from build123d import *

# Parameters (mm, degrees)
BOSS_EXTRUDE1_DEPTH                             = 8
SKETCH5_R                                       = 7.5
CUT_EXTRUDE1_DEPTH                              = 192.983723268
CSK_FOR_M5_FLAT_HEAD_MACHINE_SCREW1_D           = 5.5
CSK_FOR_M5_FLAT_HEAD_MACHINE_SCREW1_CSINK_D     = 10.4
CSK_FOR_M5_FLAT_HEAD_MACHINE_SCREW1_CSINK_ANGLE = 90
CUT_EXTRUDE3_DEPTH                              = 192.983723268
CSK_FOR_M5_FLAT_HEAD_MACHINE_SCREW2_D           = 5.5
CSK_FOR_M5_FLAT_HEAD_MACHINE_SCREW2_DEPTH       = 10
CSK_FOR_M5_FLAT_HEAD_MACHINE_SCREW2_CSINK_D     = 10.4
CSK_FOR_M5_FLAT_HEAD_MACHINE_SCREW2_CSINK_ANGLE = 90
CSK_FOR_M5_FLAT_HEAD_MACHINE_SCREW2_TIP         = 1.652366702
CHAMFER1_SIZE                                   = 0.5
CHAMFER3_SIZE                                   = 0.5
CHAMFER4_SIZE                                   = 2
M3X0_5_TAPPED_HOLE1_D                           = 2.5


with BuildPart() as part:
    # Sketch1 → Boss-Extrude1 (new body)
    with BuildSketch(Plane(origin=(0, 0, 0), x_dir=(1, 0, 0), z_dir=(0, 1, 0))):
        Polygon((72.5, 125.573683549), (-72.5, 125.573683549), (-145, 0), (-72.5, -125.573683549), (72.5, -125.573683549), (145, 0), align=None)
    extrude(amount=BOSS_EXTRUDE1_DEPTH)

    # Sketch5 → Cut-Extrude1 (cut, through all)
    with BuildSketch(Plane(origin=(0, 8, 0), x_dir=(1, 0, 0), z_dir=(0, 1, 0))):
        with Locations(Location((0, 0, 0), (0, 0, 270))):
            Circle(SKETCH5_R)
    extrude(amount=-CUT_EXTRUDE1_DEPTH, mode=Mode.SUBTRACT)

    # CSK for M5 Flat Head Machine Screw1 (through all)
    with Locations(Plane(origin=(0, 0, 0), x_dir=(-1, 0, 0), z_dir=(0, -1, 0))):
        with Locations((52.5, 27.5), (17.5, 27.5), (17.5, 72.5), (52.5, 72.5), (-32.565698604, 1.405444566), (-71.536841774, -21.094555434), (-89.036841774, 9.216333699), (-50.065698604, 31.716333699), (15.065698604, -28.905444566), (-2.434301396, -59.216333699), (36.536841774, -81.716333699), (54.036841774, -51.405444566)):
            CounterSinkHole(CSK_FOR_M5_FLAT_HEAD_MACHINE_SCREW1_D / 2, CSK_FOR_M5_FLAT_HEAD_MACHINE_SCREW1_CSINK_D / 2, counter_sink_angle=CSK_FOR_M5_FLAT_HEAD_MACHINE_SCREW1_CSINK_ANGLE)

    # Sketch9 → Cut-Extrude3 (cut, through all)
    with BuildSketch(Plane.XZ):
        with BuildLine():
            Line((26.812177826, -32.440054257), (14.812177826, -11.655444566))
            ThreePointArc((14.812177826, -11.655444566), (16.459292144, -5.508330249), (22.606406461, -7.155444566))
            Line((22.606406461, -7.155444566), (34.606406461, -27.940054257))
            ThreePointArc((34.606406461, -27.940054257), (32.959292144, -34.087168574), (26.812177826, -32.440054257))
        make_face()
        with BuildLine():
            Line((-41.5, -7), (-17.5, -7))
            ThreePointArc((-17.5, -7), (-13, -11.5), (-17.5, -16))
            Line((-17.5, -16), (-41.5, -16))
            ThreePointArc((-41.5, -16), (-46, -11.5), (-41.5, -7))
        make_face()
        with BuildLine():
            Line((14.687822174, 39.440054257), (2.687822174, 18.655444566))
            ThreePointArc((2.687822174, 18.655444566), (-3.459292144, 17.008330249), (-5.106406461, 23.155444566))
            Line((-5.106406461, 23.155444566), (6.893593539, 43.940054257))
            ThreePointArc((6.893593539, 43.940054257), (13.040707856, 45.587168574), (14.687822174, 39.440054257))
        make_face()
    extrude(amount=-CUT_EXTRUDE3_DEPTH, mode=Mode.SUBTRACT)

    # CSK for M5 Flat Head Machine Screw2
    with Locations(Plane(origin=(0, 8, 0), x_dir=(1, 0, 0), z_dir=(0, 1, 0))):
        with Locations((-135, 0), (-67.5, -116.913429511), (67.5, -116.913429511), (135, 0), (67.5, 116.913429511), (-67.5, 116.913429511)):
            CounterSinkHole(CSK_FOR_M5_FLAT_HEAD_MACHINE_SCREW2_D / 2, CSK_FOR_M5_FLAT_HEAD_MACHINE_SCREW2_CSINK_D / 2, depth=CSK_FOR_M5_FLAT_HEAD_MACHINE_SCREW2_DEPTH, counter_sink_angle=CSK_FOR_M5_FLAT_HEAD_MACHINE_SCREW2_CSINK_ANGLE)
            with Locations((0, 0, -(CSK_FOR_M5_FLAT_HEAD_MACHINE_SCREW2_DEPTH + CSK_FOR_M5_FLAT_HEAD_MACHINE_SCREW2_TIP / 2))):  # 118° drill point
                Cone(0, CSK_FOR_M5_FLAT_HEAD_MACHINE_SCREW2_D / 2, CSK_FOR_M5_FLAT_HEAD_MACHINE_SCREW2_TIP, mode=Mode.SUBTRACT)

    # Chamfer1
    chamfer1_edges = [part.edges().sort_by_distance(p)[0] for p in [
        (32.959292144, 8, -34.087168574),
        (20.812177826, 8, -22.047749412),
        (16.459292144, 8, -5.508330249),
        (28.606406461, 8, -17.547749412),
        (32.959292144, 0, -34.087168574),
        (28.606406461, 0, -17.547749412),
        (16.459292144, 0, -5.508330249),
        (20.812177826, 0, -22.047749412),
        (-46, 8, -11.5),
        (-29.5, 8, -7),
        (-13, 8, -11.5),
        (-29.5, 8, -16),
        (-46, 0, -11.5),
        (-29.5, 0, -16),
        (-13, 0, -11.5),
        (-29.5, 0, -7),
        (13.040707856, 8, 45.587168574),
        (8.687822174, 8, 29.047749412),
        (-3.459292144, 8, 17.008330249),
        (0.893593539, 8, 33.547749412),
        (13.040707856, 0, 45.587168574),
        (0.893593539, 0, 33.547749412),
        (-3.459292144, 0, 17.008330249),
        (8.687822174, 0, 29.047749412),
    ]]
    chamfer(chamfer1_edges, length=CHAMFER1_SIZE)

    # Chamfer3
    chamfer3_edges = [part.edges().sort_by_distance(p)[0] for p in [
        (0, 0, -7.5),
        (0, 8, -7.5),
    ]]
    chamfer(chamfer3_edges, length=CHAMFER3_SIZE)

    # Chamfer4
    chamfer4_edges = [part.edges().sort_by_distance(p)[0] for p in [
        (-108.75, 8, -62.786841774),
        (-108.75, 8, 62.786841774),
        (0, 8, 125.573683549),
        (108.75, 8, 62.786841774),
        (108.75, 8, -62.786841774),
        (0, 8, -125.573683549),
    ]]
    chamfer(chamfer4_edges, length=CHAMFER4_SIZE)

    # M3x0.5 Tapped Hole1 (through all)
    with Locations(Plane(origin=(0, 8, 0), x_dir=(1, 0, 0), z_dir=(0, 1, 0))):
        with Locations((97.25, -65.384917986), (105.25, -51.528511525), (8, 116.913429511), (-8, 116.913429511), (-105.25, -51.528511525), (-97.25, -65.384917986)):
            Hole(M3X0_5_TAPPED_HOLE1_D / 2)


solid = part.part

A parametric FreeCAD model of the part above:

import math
import FreeCAD as App
import Part
import Sketcher
Q = App.Units.Quantity


def edges_at(feature, points):
    """Names of the edges that pass closest to the given points."""
    edges = feature.Shape.Edges
    near = lambda p: min(range(len(edges)), key=lambda i: edges[i].distToShape(Part.Vertex(*p))[0])
    return sorted({f"Edge{near(p) + 1}" for p in points})

doc = App.newDocument("Part")
body = doc.addObject("PartDesign::Body", "Body")

# Sketch on XZ plane
sketch1 = body.newObject("Sketcher::SketchObject", "Sketch")
sketch1.AttachmentSupport = (doc.getObject("XZ_Plane"), [""])
sketch1.MapMode = "FlatFace"
sketch1.addGeometry([
    Part.LineSegment(App.Vector(72, -126, 0), App.Vector(-72, -126, 0)),  # 0
    Part.LineSegment(App.Vector(-72, -126, 0), App.Vector(-145, 0, 0)),  # 1
    Part.LineSegment(App.Vector(-145, 0, 0), App.Vector(-72, 126, 0)),  # 2
    Part.LineSegment(App.Vector(-72, 126, 0), App.Vector(72, 126, 0)),  # 3
    Part.LineSegment(App.Vector(72, 126, 0), App.Vector(145, 0, 0)),  # 4
    Part.LineSegment(App.Vector(145, 0, 0), App.Vector(72, -126, 0)),  # 5
], False)
sketch1.addConstraint([
    Sketcher.Constraint("Coincident", 0, 2, 1, 1),
    Sketcher.Constraint("Coincident", 1, 2, 2, 1),
    Sketcher.Constraint("Coincident", 2, 2, 3, 1),
    Sketcher.Constraint("Coincident", 3, 2, 4, 1),
    Sketcher.Constraint("Coincident", 4, 2, 5, 1),
    Sketcher.Constraint("Coincident", 5, 2, 0, 1),
    Sketcher.Constraint("Horizontal", 0),
    Sketcher.Constraint("Horizontal", 3),
    Sketcher.Constraint("Symmetric", 0, 2, 3, 2, -1, 1),
    Sketcher.Constraint("Symmetric", 1, 2, 4, 2, -1, 1),
    Sketcher.Constraint("PointOnObject", 1, 2, -1),
    Sketcher.Constraint("Parallel", 2, 5),
    Sketcher.Constraint("Vertical", 0, 2, 2, 2),
    Sketcher.Constraint("DistanceX", 0, 2, 0, 1, Q("145 mm")),
    Sketcher.Constraint("Angle", 1, Q("120 deg")),
    Sketcher.Constraint("Distance", 1, Q("145 mm")),
])
pad1 = body.newObject("PartDesign::Pad", "Pad")
pad1.Profile = sketch1
pad1.Length = 8
pad1.Reversed = True

# Sketch on XZ plane
sketch2 = body.newObject("Sketcher::SketchObject", "Sketch001")
sketch2.AttachmentSupport = (doc.getObject("XZ_Plane"), [""])
sketch2.MapMode = "FlatFace"
sketch2.AttachmentOffset = App.Placement(App.Vector(0, 0, -8), App.Rotation())
sketch2.addGeometry(Part.Circle(App.Vector(0, 0, 0), App.Vector(0, 0, 1), 8), False)
sketch2.addConstraint([
    Sketcher.Constraint("Coincident", 0, 3, -1, 1),
    Sketcher.Constraint("Diameter", 0, Q("15 mm")),
])
pocket1 = body.newObject("PartDesign::Pocket", "Pocket")
pocket1.Profile = sketch2
pocket1.Type = "ThroughAll"
pocket1.Reversed = True

# Sketch on XZ plane
sketch3 = body.newObject("Sketcher::SketchObject", "Sketch002")
sketch3.AttachmentSupport = (doc.getObject("XZ_Plane"), [""])
sketch3.MapMode = "FlatFace"
sketch3.addGeometry([
    Part.Circle(App.Vector(-52.5, -27.5, 0), App.Vector(0, 0, 1), 2.8),  # 0
    Part.Circle(App.Vector(-17.5, -27.5, 0), App.Vector(0, 0, 1), 2.8),  # 1
    Part.Circle(App.Vector(-17.5, -72.5, 0), App.Vector(0, 0, 1), 2.8),  # 2
    Part.Circle(App.Vector(-52.5, -72.5, 0), App.Vector(0, 0, 1), 2.8),  # 3
    Part.Circle(App.Vector(32.6, -1.4, 0), App.Vector(0, 0, 1), 2.8),  # 4
    Part.Circle(App.Vector(71.5, 21.1, 0), App.Vector(0, 0, 1), 2.8),  # 5
    Part.Circle(App.Vector(89, -9.2, 0), App.Vector(0, 0, 1), 2.8),  # 6
    Part.Circle(App.Vector(50.1, -31.7, 0), App.Vector(0, 0, 1), 2.8),  # 7
    Part.Circle(App.Vector(-15.1, 28.9, 0), App.Vector(0, 0, 1), 2.8),  # 8
    Part.Circle(App.Vector(2.4, 59.2, 0), App.Vector(0, 0, 1), 2.8),  # 9
    Part.Circle(App.Vector(-36.5, 81.7, 0), App.Vector(0, 0, 1), 2.8),  # 10
    Part.Circle(App.Vector(-54, 51.4, 0), App.Vector(0, 0, 1), 2.8),  # 11
], False)
sketch3.addConstraint([
    Sketcher.Constraint("Equal", 0, 1),
    Sketcher.Constraint("Equal", 1, 2),
    Sketcher.Constraint("Equal", 2, 3),
    Sketcher.Constraint("Equal", 3, 4),
    Sketcher.Constraint("Equal", 4, 5),
    Sketcher.Constraint("Equal", 5, 6),
    Sketcher.Constraint("Equal", 6, 7),
    Sketcher.Constraint("Equal", 7, 8),
    Sketcher.Constraint("Equal", 8, 9),
    Sketcher.Constraint("Equal", 9, 10),
    Sketcher.Constraint("Equal", 10, 11),
    Sketcher.Constraint("Horizontal", 0, 3, 1, 3),
    Sketcher.Constraint("Horizontal", 2, 3, 3, 3),
    Sketcher.Constraint("Vertical", 1, 3, 2, 3),
    Sketcher.Constraint("Vertical", 0, 3, 3, 3),
    Sketcher.Constraint("Diameter", 0, Q("5.5 mm")),
    Sketcher.Constraint("DistanceX", 0, 3, 1, 3, Q("35 mm")),
    Sketcher.Constraint("DistanceY", 2, 3, 1, 3, Q("45 mm")),
    Sketcher.Constraint("DistanceX", 0, 3, -1, 1, Q("52.5 mm")),
    Sketcher.Constraint("DistanceY", 0, 3, -1, 1, Q("27.5 mm")),
    Sketcher.Constraint("DistanceY", 4, 3, 5, 3, Q("22.5 mm")),
    Sketcher.Constraint("DistanceX", 5, 3, 6, 3, Q("17.5 mm")),
    Sketcher.Constraint("DistanceX", 4, 3, 7, 3, Q("17.5 mm")),
    Sketcher.Constraint("DistanceY", 7, 3, 6, 3, Q("22.5 mm")),
    Sketcher.Constraint("DistanceX", 8, 3, 9, 3, Q("17.5 mm")),
    Sketcher.Constraint("DistanceY", 9, 3, 10, 3, Q("22.5 mm")),
    Sketcher.Constraint("DistanceX", 11, 3, 10, 3, Q("17.5 mm")),
    Sketcher.Constraint("DistanceY", 8, 3, 11, 3, Q("22.5 mm")),
    Sketcher.Constraint("DistanceX", -1, 1, 4, 3, Q("32.565699 mm")),
    Sketcher.Constraint("DistanceX", 8, 3, -1, 1, Q("15.065699 mm")),
    Sketcher.Constraint("DistanceX", -1, 1, 5, 3, Q("71.536842 mm")),
    Sketcher.Constraint("DistanceX", 10, 3, -1, 1, Q("36.536842 mm")),
    Sketcher.Constraint("DistanceY", 6, 3, 5, 3, Q("30.310889 mm")),
    Sketcher.Constraint("DistanceY", 4, 3, 8, 3, Q("30.310889 mm")),
    Sketcher.Constraint("DistanceY", 8, 3, 9, 3, Q("30.310889 mm")),
    Sketcher.Constraint("DistanceY", 4, 3, -1, 1, Q("1.405445 mm")),
])
doc.recompute()
hole = body.newObject("PartDesign::Hole", "Hole")
hole.Profile = sketch3
hole.ThreadType = "None"
hole.Diameter = 5.5
hole.DepthType = "ThroughAll"
hole.HoleCutType = "Countersink"
hole.HoleCutDiameter = 10.4
hole.HoleCutCountersinkAngle = 90

# Sketch on XZ plane
sketch4 = body.newObject("Sketcher::SketchObject", "Sketch003")
sketch4.AttachmentSupport = (doc.getObject("XZ_Plane"), [""])
sketch4.MapMode = "FlatFace"
sketch4.addGeometry([
    Part.LineSegment(App.Vector(14.8, -11.7, 0), App.Vector(26.8, -32.4, 0)),  # 0
    Part.ArcOfCircle(Part.Circle(App.Vector(30.7, -30.2, 0), App.Vector(0, 0, 1), 4.5), math.radians(-150), math.radians(30)),  # 1
    Part.LineSegment(App.Vector(34.6, -27.9, 0), App.Vector(22.6, -7.2, 0)),  # 2
    Part.ArcOfCircle(Part.Circle(App.Vector(18.7, -9.4, 0), App.Vector(0, 0, 1), 4.5), math.radians(30), math.radians(210)),  # 3
    Part.LineSegment(App.Vector(-17.5, -7, 0), App.Vector(-41.5, -7, 0)),  # 4
    Part.ArcOfCircle(Part.Circle(App.Vector(-41.5, -11.5, 0), App.Vector(0, 0, 1), 4.5), math.radians(90), math.radians(270)),  # 5
    Part.LineSegment(App.Vector(-41.5, -16, 0), App.Vector(-17.5, -16, 0)),  # 6
    Part.ArcOfCircle(Part.Circle(App.Vector(-17.5, -11.5, 0), App.Vector(0, 0, 1), 4.5), math.radians(-90), math.radians(90)),  # 7
    Part.LineSegment(App.Vector(2.7, 18.7, 0), App.Vector(14.7, 39.4, 0)),  # 8
    Part.ArcOfCircle(Part.Circle(App.Vector(10.8, 41.7, 0), App.Vector(0, 0, 1), 4.5), math.radians(-30), math.radians(150)),  # 9
    Part.LineSegment(App.Vector(6.9, 43.9, 0), App.Vector(-5.1, 23.2, 0)),  # 10
    Part.ArcOfCircle(Part.Circle(App.Vector(-1.2, 20.9, 0), App.Vector(0, 0, 1), 4.5), math.radians(150), math.radians(330)),  # 11
], False)
sketch4.addConstraint([
    Sketcher.Constraint("Tangent", 0, 2, 1, 1),
    Sketcher.Constraint("Tangent", 1, 2, 2, 1),
    Sketcher.Constraint("Tangent", 2, 2, 3, 1),
    Sketcher.Constraint("Tangent", 3, 2, 0, 1),
    Sketcher.Constraint("Tangent", 4, 2, 5, 1),
    Sketcher.Constraint("Tangent", 5, 2, 6, 1),
    Sketcher.Constraint("Tangent", 6, 2, 7, 1),
    Sketcher.Constraint("Tangent", 7, 2, 4, 1),
    Sketcher.Constraint("Tangent", 8, 2, 9, 1),
    Sketcher.Constraint("Tangent", 9, 2, 10, 1),
    Sketcher.Constraint("Tangent", 10, 2, 11, 1),
    Sketcher.Constraint("Tangent", 11, 2, 8, 1),
    Sketcher.Constraint("Horizontal", 4),
    Sketcher.Constraint("Horizontal", 6),
    Sketcher.Constraint("Equal", 1, 3),
    Sketcher.Constraint("Equal", 3, 5),
    Sketcher.Constraint("Equal", 7, 9),
    Sketcher.Constraint("Equal", 9, 11),
    Sketcher.Constraint("Equal", 2, 8),
    Sketcher.Constraint("Radius", 1, Q("4.5 mm")),
    Sketcher.Constraint("DistanceX", 4, 2, 4, 1, Q("24 mm")),
    Sketcher.Constraint("Angle", 0, Q("-60 deg")),
    Sketcher.Constraint("Angle", 8, Q("60 deg")),
    Sketcher.Constraint("Distance", 0, Q("24 mm")),
    Sketcher.Constraint("DistanceY", 4, 2, -1, 1, Q("7 mm")),
    Sketcher.Constraint("DistanceX", 5, 3, -1, 1, Q("41.5 mm")),
    Sketcher.Constraint("DistanceY", 3, 3, 9, 3, Q("51.095499 mm")),
    Sketcher.Constraint("DistanceX", 11, 3, 1, 2, Q("35.815699 mm")),
    Sketcher.Constraint("DistanceX", -1, 1, 1, 3, Q("30.709292 mm")),
    Sketcher.Constraint("DistanceY", 1, 3, -1, 1, Q("30.190054 mm")),
])
pocket2 = body.newObject("PartDesign::Pocket", "Pocket001")
pocket2.Profile = sketch4
pocket2.Type = "ThroughAll"

# Sketch on XZ plane
sketch5 = body.newObject("Sketcher::SketchObject", "Sketch004")
sketch5.AttachmentSupport = (doc.getObject("XZ_Plane"), [""])
sketch5.MapMode = "FlatFace"
sketch5.AttachmentOffset = App.Placement(App.Vector(0, 0, -8), App.Rotation())
sketch5.addGeometry([
    Part.Circle(App.Vector(-135, 0, 0), App.Vector(0, 0, 1), 2.8),  # 0
    Part.Circle(App.Vector(-67.5, 116.9, 0), App.Vector(0, 0, 1), 2.8),  # 1
    Part.Circle(App.Vector(67.5, 116.9, 0), App.Vector(0, 0, 1), 2.8),  # 2
    Part.Circle(App.Vector(135, 0, 0), App.Vector(0, 0, 1), 2.8),  # 3
    Part.Circle(App.Vector(67.5, -116.9, 0), App.Vector(0, 0, 1), 2.8),  # 4
    Part.Circle(App.Vector(-67.5, -116.9, 0), App.Vector(0, 0, 1), 2.8),  # 5
], False)
sketch5.addConstraint([
    Sketcher.Constraint("Equal", 0, 1),
    Sketcher.Constraint("Equal", 1, 2),
    Sketcher.Constraint("Equal", 2, 3),
    Sketcher.Constraint("Equal", 3, 4),
    Sketcher.Constraint("Equal", 4, 5),
    Sketcher.Constraint("Symmetric", 0, 3, 3, 3, -1, 1),
    Sketcher.Constraint("Symmetric", 1, 3, 4, 3, -1, 1),
    Sketcher.Constraint("Symmetric", 2, 3, 5, 3, -1, 1),
    Sketcher.Constraint("Symmetric", 1, 3, 2, 3, -2),
    Sketcher.Constraint("PointOnObject", 0, 3, -1),
    Sketcher.Constraint("Diameter", 0, Q("5.5 mm")),
    Sketcher.Constraint("DistanceX", 0, 3, -1, 1, Q("135 mm")),
    Sketcher.Constraint("DistanceX", 1, 3, 2, 3, Q("135 mm")),
    Sketcher.Constraint("DistanceY", -1, 1, 1, 3, Q("116.91343 mm")),
])
doc.recompute()
hole2 = body.newObject("PartDesign::Hole", "Hole001")
hole2.Profile = sketch5
hole2.ThreadType = "None"
hole2.Diameter = 5.5
hole2.DepthType = "Dimension"
hole2.Depth = 10
hole2.DrillPoint = "Angled"
hole2.DrillPointAngle = 118
hole2.HoleCutType = "Countersink"
hole2.HoleCutDiameter = 10.4
hole2.HoleCutCountersinkAngle = 90
hole2.Reversed = True
doc.recompute()

chamfer = body.newObject("PartDesign::Chamfer", "Chamfer")
chamfer.Base = (hole2, edges_at(hole2, [
    (32.959, 8, -34.087),
    (20.812, 8, -22.048),
    (16.459, 8, -5.508),
    (28.606, 8, -17.548),
    (32.959, 0, -34.087),
    (28.606, 0, -17.548),
    (16.459, 0, -5.508),
    (20.812, 0, -22.048),
    (-46, 8, -11.5),
    (-29.5, 8, -7),
    (-13, 8, -11.5),
    (-29.5, 8, -16),
    (-46, 0, -11.5),
    (-29.5, 0, -16),
    (-13, 0, -11.5),
    (-29.5, 0, -7),
    (13.041, 8, 45.587),
    (8.688, 8, 29.048),
    (-3.459, 8, 17.008),
    (0.894, 8, 33.548),
    (13.041, 0, 45.587),
    (0.894, 0, 33.548),
    (-3.459, 0, 17.008),
    (8.688, 0, 29.048),
]))
chamfer.Size = 0.5
doc.recompute()

chamfer2 = body.newObject("PartDesign::Chamfer", "Chamfer001")
chamfer2.Base = (chamfer, edges_at(chamfer, [(0, 0, -7.5), (0, 8, -7.5)]))
chamfer2.Size = 0.5
doc.recompute()

chamfer3 = body.newObject("PartDesign::Chamfer", "Chamfer002")
chamfer3.Base = (chamfer2, edges_at(chamfer2, [
    (-108.75, 8, -62.787),
    (-108.75, 8, 62.787),
    (0, 8, 125.574),
    (108.75, 8, 62.787),
    (108.75, 8, -62.787),
    (0, 8, -125.574),
]))
chamfer3.Size = 2

# Sketch on XZ plane
sketch6 = body.newObject("Sketcher::SketchObject", "Sketch005")
sketch6.AttachmentSupport = (doc.getObject("XZ_Plane"), [""])
sketch6.MapMode = "FlatFace"
sketch6.AttachmentOffset = App.Placement(App.Vector(0, 0, -8), App.Rotation())
sketch6.addGeometry([
    Part.Circle(App.Vector(97.2, 65.4, 0), App.Vector(0, 0, 1), 1.2),  # 0
    Part.Circle(App.Vector(105.2, 51.5, 0), App.Vector(0, 0, 1), 1.2),  # 1
    Part.Circle(App.Vector(8, -116.9, 0), App.Vector(0, 0, 1), 1.2),  # 2
    Part.Circle(App.Vector(-8, -116.9, 0), App.Vector(0, 0, 1), 1.2),  # 3
    Part.Circle(App.Vector(-105.2, 51.5, 0), App.Vector(0, 0, 1), 1.2),  # 4
    Part.Circle(App.Vector(-97.2, 65.4, 0), App.Vector(0, 0, 1), 1.2),  # 5
], False)
sketch6.addConstraint([
    Sketcher.Constraint("Equal", 0, 1),
    Sketcher.Constraint("Equal", 1, 2),
    Sketcher.Constraint("Equal", 2, 3),
    Sketcher.Constraint("Equal", 3, 4),
    Sketcher.Constraint("Equal", 4, 5),
    Sketcher.Constraint("Symmetric", 2, 3, 3, 3, -2),
    Sketcher.Constraint("Symmetric", 1, 3, 4, 3, -2),
    Sketcher.Constraint("Symmetric", 0, 3, 5, 3, -2),
    Sketcher.Constraint("Diameter", 0, Q("2.5 mm")),
    Sketcher.Constraint("DistanceX", -1, 1, 2, 3, Q("8 mm")),
    Sketcher.Constraint("DistanceX", 0, 3, 1, 3, Q("8 mm")),
    Sketcher.Constraint("DistanceX", 4, 3, 0, 3, Q("202.5 mm")),
    Sketcher.Constraint("DistanceY", -1, 1, 1, 3, Q("51.528512 mm")),
    Sketcher.Constraint("DistanceY", 2, 3, -1, 1, Q("116.91343 mm")),
    Sketcher.Constraint("DistanceY", -1, 1, 0, 3, Q("65.384918 mm")),
])
doc.recompute()
hole3 = body.newObject("PartDesign::Hole", "Hole002")
hole3.Profile = sketch6
hole3.ThreadType = "None"
hole3.Diameter = 2.5
hole3.DepthType = "ThroughAll"
hole3.Reversed = True

doc.recompute()
